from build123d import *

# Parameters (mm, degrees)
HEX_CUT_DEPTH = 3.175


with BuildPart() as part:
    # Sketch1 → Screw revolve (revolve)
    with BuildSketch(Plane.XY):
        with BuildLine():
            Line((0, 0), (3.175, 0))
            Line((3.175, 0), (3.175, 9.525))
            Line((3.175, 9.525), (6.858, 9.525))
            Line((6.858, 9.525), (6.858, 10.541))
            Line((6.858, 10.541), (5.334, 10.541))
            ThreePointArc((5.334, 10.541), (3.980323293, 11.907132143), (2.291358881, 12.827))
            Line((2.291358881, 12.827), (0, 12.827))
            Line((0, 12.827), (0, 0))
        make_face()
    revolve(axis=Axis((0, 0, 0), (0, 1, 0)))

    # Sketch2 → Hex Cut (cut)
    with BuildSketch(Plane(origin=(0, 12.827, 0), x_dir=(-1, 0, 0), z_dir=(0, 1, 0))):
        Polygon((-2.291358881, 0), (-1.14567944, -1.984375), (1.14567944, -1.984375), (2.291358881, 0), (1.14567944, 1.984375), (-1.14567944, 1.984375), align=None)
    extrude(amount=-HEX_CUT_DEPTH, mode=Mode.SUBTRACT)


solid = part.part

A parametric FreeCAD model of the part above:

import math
import FreeCAD as App
import Part
import Sketcher

V = App.Vector
Q = App.Units.Quantity

doc = App.newDocument("Part")
body = doc.addObject("PartDesign::Body", "Body")

sketch1 = body.newObject("Sketcher::SketchObject", "Sketch")
sketch1.AttachmentSupport = (doc.getObject("XY_Plane"), [""])
sketch1.MapMode = "FlatFace"
sketch1.addGeometry([
    Part.LineSegment(V(0, 0, 0), V(3.2, 0, 0)),
    Part.LineSegment(V(3.2, 0, 0), V(3.2, 9.5, 0)),
    Part.LineSegment(V(3.2, 9.5, 0), V(6.9, 9.5, 0)),
    Part.LineSegment(V(6.9, 9.5, 0), V(6.9, 10.5, 0)),
    Part.LineSegment(V(6.9, 10.5, 0), V(5.3, 10.5, 0)),
    Part.ArcOfCircle(Part.Circle(V(0, 6.6, 0), V(0, 0, 1), 6.6), math.radians(36), math.radians(70)),
    Part.LineSegment(V(2.3, 12.8, 0), V(0, 12.8, 0)),
    Part.LineSegment(V(0, 12.8, 0), V(0, 0, 0)),
], False)
sketch1.addConstraint([
    Sketcher.Constraint("Coincident", 0, 2, 1, 1),
    Sketcher.Constraint("Coincident", 1, 2, 2, 1),
    Sketcher.Constraint("Coincident", 2, 2, 3, 1),
    Sketcher.Constraint("Coincident", 3, 2, 4, 1),
    Sketcher.Constraint("Coincident", 4, 2, 5, 1),
    Sketcher.Constraint("Coincident", 5, 2, 6, 1),
    Sketcher.Constraint("Coincident", 6, 2, 7, 1),
    Sketcher.Constraint("Coincident", 7, 2, 0, 1),
    Sketcher.Constraint("Horizontal", 0),
    Sketcher.Constraint("Vertical", 1),
    Sketcher.Constraint("Horizontal", 2),
    Sketcher.Constraint("Vertical", 3),
    Sketcher.Constraint("Horizontal", 4),
    Sketcher.Constraint("Horizontal", 6),
    Sketcher.Constraint("Vertical", 7),
    Sketcher.Constraint("Coincident", 7, 2, -1, 1),
    Sketcher.Constraint("PointOnObject", 5, 3, -2),
    Sketcher.Constraint("DistanceX", 4, 2, 4, 1, Q("0.06 in")),
    Sketcher.Constraint("DistanceY", 3, 1, 3, 2, Q("0.04 in")),
    Sketcher.Constraint("DistanceX", 0, 1, 0, 2, Q("0.125 in")),
    Sketcher.Constraint("DistanceX", 2, 1, 2, 2, Q("0.145 in")),
    Sketcher.Constraint("DistanceY", 1, 1, 1, 2, Q("0.375 in")),
    Sketcher.Constraint("DistanceY", 7, 2, 7, 1, Q("0.505 in")),
    Sketcher.Constraint("Radius", 5, 6.62641),
])
revolution = body.newObject("PartDesign::Revolution", "Revolution")
revolution.Profile = sketch1
revolution.ReferenceAxis = (sketch1, ["V_Axis"])
revolution.Angle = 360

sketch2 = body.newObject("Sketcher::SketchObject", "Sketch001")
sketch2.AttachmentSupport = (doc.getObject("XZ_Plane"), [""])
sketch2.MapMode = "FlatFace"
sketch2.AttachmentOffset = App.Placement(V(0, 0, -0.505 * 25.4), App.Rotation())
sketch2.addGeometry([
    Part.LineSegment(V(2.3, 0, 0), V(1.1, -2, 0)),
    Part.LineSegment(V(1.1, -2, 0), V(-1.1, -2, 0)),
    Part.LineSegment(V(-1.1, -2, 0), V(-2.3, 0, 0)),
    Part.LineSegment(V(-2.3, 0, 0), V(-1.1, 2, 0)),
    Part.LineSegment(V(-1.1, 2, 0), V(1.1, 2, 0)),
    Part.LineSegment(V(1.1, 2, 0), V(2.3, 0, 0)),
], False)
sketch2.addConstraint([
    Sketcher.Constraint("Coincident", 0, 2, 1, 1),
    Sketcher.Constraint("Coincident", 1, 2, 2, 1),
    Sketcher.Constraint("Coincident", 2, 2, 3, 1),
    Sketcher.Constraint("Coincident", 3, 2, 4, 1),
    Sketcher.Constraint("Coincident", 4, 2, 5, 1),
    Sketcher.Constraint("Coincident", 5, 2, 0, 1),
    Sketcher.Constraint("Horizontal", 1),
    Sketcher.Constraint("Horizontal", 4),
    Sketcher.Constraint("Symmetric", 0, 2, 3, 2, -1, 1),
    Sketcher.Constraint("Symmetric", 2, 2, 5, 2, -1, 1),
    Sketcher.Constraint("PointOnObject", 2, 2, -1),
    Sketcher.Constraint("Parallel", 2, 5),
    Sketcher.Constraint("Vertical", 1, 2, 3, 2),
    Sketcher.Constraint("Angle", 0, Q("-120 deg")),
    Sketcher.Constraint("DistanceY", 0, 2, -1, 1, Q("0.078125 in")),
    Sketcher.Constraint("DistanceX", 1, 2, 1, 1, 2.291359),
])
pocket1 = body.newObject("PartDesign::Pocket", "Pocket")
pocket1.Profile = sketch2
pocket1.Length = Q("0.125 in")
pocket1.Reversed = True

doc.recompute()
